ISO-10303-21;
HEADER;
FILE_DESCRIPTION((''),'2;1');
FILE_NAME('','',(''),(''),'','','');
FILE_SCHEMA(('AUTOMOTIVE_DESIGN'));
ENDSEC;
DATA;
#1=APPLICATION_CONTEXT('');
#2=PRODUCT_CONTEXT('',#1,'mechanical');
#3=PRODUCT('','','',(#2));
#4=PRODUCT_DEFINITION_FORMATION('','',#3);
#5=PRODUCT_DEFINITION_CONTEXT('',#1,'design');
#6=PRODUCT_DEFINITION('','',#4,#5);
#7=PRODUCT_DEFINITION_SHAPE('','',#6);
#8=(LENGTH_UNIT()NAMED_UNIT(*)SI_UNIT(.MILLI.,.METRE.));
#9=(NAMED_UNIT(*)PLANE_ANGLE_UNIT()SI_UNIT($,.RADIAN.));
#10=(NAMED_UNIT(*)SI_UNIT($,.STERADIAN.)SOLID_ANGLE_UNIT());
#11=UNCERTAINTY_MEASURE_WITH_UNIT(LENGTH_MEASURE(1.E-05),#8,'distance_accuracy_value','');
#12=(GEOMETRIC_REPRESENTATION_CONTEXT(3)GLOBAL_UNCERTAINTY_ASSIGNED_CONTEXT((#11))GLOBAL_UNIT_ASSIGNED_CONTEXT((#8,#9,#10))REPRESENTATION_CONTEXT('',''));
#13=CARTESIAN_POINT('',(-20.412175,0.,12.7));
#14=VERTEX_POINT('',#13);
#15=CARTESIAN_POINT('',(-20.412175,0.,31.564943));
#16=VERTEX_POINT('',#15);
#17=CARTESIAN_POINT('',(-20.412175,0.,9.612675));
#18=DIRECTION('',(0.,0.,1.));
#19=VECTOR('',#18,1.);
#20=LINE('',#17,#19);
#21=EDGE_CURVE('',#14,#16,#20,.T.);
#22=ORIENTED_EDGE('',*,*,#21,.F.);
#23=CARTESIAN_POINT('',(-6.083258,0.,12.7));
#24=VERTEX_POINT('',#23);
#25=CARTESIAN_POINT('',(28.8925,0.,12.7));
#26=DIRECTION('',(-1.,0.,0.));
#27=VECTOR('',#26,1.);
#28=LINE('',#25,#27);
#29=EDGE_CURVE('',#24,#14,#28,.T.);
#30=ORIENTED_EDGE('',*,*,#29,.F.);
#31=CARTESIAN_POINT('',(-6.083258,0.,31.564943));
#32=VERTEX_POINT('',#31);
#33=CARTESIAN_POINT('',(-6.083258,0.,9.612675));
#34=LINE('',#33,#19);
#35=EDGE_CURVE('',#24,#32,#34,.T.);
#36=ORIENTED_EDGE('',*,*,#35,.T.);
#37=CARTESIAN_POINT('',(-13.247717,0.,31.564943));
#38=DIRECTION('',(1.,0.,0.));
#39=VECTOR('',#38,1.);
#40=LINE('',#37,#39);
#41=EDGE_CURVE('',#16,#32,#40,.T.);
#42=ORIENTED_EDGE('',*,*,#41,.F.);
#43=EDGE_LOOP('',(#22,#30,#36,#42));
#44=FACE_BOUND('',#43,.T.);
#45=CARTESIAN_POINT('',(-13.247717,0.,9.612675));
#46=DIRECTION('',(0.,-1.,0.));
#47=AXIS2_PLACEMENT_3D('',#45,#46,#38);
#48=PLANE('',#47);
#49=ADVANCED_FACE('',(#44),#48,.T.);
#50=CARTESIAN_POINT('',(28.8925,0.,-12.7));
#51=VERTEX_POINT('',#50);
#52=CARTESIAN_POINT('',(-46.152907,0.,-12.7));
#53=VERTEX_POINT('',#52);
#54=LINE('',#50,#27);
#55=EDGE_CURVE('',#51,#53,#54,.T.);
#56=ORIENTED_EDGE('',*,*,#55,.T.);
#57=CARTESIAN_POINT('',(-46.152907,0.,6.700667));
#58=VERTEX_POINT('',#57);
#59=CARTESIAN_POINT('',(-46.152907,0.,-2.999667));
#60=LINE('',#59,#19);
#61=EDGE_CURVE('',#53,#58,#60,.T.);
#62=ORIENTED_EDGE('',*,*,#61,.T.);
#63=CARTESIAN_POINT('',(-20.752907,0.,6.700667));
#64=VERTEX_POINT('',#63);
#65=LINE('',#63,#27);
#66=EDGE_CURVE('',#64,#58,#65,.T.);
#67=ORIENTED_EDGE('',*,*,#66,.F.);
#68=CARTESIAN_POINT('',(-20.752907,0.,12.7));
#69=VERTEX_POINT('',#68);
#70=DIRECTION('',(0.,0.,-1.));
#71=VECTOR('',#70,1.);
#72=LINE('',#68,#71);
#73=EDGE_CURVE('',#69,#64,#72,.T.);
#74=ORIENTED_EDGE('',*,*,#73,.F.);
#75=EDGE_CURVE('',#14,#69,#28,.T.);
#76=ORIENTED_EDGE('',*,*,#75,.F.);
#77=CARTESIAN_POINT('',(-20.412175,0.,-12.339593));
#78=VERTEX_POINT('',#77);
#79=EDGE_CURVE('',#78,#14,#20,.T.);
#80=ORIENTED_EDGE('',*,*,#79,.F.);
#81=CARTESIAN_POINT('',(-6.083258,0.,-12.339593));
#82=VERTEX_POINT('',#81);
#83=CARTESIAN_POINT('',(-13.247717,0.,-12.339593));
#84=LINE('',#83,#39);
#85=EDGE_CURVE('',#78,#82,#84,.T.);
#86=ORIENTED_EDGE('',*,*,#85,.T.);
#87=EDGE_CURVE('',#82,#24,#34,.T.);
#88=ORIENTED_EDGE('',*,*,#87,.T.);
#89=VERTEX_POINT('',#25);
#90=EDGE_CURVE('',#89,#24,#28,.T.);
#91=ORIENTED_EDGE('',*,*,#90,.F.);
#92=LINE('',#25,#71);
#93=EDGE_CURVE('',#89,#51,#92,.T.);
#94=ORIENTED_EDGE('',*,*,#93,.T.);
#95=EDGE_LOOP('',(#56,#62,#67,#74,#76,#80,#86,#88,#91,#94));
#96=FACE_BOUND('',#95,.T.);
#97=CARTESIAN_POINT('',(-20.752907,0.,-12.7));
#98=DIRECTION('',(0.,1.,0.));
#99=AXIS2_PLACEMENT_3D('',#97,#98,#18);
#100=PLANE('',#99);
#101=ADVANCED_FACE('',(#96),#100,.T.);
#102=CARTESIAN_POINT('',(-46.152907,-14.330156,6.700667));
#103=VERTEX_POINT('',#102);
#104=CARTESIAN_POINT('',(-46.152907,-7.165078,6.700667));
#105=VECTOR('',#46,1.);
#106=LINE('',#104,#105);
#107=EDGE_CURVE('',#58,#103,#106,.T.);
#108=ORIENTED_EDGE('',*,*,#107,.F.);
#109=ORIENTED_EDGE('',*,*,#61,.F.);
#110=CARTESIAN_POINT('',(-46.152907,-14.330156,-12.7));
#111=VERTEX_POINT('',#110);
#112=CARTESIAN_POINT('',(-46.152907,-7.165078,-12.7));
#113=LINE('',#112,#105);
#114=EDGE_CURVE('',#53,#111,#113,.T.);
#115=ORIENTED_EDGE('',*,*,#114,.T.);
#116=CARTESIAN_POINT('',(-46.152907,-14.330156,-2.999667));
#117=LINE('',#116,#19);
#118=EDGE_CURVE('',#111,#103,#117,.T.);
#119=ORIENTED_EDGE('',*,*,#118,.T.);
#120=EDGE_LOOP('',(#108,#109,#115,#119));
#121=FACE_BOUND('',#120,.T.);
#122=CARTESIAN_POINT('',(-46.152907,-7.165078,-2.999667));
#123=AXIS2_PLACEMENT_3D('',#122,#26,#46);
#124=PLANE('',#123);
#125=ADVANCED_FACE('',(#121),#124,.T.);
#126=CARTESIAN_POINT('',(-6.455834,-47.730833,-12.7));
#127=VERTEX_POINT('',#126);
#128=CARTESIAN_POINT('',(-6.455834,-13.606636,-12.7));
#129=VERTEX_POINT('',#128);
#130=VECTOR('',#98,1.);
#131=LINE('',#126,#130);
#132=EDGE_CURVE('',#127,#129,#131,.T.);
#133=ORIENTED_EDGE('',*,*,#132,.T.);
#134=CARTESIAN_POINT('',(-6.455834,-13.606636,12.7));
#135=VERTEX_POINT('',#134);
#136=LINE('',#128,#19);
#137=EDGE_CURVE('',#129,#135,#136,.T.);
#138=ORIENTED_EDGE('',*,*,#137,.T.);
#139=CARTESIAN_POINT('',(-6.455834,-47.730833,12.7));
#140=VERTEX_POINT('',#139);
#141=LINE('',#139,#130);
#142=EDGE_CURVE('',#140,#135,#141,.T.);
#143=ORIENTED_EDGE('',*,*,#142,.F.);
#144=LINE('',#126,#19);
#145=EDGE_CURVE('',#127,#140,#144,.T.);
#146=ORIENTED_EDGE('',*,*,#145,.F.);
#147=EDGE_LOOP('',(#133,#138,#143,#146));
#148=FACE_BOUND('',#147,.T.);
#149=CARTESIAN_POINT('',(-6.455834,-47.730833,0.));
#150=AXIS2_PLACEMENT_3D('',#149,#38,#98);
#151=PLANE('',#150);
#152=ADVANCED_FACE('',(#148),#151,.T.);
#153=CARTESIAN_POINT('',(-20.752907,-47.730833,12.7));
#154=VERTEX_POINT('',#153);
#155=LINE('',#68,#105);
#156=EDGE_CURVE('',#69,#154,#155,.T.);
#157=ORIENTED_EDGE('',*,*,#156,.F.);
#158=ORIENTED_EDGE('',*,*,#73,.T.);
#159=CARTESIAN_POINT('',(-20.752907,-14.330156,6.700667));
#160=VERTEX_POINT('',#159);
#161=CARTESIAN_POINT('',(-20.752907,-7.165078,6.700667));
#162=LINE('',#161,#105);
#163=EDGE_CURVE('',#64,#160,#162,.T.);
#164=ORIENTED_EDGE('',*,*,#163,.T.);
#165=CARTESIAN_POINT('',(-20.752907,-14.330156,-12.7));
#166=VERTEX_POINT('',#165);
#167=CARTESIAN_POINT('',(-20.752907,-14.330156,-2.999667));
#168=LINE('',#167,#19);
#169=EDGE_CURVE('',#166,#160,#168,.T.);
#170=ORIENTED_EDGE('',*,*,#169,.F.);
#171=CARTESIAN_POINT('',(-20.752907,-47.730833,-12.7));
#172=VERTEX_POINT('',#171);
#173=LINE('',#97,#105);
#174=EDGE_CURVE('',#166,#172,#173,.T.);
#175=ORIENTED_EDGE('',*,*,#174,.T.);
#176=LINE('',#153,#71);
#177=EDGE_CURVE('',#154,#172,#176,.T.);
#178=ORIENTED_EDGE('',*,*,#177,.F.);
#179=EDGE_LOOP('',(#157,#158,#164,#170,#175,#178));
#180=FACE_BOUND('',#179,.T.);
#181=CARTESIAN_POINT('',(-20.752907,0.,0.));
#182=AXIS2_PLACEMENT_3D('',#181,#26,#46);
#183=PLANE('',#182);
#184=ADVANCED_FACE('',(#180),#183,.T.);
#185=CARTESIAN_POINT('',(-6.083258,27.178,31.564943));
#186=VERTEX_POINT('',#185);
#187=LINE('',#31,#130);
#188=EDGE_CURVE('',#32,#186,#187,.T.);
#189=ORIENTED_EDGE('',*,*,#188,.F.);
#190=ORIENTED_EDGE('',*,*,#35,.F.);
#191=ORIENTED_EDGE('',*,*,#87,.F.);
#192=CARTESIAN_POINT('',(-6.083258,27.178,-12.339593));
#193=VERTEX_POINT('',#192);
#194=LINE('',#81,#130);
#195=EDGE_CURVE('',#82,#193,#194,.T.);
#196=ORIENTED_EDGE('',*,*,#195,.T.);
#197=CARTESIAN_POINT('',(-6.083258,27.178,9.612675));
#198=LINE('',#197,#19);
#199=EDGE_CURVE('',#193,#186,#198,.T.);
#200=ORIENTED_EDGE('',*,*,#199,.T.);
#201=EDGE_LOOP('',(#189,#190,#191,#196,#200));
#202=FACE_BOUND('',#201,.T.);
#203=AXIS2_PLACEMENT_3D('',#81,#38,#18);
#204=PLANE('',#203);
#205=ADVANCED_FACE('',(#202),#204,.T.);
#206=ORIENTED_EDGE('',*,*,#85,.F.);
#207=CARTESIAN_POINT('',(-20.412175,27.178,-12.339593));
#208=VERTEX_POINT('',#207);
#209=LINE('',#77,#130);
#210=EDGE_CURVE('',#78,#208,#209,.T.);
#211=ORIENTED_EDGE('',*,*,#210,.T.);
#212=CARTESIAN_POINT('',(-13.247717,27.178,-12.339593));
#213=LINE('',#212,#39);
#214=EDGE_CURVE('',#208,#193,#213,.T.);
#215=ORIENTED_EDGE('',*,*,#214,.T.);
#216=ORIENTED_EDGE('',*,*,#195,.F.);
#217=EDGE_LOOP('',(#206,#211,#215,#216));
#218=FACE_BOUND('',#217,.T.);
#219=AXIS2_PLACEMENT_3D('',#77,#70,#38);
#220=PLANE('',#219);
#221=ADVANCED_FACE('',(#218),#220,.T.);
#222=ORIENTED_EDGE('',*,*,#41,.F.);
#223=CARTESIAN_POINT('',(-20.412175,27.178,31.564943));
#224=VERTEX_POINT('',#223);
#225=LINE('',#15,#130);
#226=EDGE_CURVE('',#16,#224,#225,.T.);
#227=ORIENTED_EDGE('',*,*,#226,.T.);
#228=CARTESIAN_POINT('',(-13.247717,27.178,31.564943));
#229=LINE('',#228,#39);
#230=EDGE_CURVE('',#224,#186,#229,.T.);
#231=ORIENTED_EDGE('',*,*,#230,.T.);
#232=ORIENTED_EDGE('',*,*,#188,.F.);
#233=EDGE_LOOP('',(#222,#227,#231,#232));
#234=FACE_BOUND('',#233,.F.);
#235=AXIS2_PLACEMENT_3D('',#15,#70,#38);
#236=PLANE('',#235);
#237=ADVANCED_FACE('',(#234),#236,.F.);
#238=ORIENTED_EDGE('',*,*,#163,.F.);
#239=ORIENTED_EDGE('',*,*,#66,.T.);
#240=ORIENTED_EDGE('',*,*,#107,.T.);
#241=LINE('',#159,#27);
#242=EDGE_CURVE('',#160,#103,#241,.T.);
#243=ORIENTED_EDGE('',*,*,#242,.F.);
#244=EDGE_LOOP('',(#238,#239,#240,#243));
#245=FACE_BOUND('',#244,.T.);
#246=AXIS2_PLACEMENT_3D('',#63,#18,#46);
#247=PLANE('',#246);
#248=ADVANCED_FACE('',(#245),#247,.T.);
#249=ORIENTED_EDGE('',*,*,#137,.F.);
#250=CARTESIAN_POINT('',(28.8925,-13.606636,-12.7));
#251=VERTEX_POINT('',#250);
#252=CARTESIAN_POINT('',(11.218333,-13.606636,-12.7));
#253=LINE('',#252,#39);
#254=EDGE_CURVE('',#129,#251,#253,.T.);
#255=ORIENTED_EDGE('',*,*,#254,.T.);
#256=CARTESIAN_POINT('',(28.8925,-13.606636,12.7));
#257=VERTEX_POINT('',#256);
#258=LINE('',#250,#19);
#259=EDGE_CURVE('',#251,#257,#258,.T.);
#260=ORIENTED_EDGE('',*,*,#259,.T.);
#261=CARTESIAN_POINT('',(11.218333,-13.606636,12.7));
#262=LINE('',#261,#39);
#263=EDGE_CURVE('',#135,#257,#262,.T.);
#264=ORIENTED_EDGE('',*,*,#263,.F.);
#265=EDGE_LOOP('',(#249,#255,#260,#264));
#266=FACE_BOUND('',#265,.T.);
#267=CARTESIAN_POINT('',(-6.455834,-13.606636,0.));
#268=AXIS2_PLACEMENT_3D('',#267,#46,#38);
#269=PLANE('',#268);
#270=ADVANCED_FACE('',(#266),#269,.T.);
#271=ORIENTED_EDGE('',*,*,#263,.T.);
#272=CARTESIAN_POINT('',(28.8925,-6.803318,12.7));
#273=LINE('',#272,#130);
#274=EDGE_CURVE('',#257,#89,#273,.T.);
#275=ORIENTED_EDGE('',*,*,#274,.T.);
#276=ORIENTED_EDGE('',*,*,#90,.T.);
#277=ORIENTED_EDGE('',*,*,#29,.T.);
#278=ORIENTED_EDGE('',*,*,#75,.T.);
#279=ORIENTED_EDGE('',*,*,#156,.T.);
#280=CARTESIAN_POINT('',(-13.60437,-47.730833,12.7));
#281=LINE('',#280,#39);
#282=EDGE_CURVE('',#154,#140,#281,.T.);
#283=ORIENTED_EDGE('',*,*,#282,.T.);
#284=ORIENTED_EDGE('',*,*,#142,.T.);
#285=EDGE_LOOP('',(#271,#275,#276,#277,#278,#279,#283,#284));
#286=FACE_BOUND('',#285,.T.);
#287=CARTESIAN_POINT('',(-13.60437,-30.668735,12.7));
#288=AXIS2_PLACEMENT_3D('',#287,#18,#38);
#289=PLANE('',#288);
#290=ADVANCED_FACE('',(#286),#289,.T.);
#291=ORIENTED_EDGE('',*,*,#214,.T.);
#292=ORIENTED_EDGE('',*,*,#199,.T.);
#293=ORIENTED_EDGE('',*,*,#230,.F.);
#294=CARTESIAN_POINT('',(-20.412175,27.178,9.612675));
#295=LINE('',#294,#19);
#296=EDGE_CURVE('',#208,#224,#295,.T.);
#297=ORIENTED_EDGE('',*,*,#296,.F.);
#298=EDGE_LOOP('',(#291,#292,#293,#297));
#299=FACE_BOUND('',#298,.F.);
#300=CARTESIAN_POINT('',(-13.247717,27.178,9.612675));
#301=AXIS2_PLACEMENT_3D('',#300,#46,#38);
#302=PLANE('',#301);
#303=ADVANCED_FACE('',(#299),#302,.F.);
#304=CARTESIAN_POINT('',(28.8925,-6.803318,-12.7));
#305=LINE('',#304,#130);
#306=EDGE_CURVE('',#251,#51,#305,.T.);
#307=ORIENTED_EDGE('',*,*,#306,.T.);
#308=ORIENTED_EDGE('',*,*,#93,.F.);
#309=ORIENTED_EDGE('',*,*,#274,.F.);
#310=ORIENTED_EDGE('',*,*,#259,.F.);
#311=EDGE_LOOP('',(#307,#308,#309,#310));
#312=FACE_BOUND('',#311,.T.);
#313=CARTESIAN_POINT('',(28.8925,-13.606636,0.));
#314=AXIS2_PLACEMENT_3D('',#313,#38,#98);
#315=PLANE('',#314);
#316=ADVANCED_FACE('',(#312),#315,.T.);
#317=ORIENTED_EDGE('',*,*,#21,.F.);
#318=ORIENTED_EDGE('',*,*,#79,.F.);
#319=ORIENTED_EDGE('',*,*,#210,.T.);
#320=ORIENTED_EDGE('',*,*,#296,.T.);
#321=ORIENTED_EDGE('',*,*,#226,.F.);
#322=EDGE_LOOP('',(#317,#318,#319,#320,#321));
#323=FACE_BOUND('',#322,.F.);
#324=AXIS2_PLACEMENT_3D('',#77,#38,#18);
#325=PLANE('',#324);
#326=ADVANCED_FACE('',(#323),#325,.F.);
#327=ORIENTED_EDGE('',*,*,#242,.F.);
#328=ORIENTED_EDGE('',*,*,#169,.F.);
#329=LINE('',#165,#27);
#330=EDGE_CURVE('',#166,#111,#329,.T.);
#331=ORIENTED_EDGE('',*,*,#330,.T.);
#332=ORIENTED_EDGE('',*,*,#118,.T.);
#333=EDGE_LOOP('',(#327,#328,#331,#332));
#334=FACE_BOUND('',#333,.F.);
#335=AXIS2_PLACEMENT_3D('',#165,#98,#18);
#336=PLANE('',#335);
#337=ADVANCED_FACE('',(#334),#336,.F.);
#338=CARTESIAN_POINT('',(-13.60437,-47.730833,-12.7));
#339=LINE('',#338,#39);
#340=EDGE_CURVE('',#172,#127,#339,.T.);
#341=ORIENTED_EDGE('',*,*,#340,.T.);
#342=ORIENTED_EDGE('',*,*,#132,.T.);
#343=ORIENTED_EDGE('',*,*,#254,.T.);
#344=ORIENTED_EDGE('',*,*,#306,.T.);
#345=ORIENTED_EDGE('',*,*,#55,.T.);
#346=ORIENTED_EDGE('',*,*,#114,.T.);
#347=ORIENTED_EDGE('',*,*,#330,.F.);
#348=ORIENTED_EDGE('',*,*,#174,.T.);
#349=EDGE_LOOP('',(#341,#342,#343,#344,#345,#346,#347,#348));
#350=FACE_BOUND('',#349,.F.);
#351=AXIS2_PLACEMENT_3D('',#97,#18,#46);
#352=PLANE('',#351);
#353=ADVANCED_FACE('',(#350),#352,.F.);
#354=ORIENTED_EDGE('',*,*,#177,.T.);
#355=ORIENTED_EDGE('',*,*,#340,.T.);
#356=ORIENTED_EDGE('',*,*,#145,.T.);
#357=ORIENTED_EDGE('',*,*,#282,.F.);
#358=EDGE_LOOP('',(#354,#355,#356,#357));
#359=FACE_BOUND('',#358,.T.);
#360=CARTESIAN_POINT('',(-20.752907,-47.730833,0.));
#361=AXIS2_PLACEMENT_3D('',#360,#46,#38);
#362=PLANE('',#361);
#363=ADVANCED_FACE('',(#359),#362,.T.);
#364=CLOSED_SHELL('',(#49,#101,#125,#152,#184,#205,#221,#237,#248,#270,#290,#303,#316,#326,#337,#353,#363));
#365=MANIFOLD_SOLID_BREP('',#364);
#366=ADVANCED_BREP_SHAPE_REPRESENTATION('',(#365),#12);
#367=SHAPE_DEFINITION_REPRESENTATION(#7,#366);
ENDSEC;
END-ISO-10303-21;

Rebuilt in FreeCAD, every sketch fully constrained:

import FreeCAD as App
import Part
import Sketcher
Q = App.Units.Quantity

doc = App.newDocument("Part")
body = doc.addObject("PartDesign::Body", "Body")

# Sketch on XY plane
sketch1 = doc.addObject("Sketcher::SketchObject", "Sketch")
body.addObject(sketch1)
sketch1.AttachmentSupport = (doc.XY_Plane, [""])
sketch1.MapMode = "FlatFace"
sketch1.addGeometry(Part.LineSegment(App.Vector(-21, -48, 0), App.Vector(-6, -48, 0)), False)
sketch1.addGeometry(Part.LineSegment(App.Vector(-6, -48, 0), App.Vector(-6, -14, 0)), False)
sketch1.addGeometry(Part.LineSegment(App.Vector(-6, -14, 0), App.Vector(29, -14, 0)), False)
sketch1.addGeometry(Part.LineSegment(App.Vector(29, -14, 0), App.Vector(29, 0, 0)), False)
sketch1.addGeometry(Part.LineSegment(App.Vector(29, 0, 0), App.Vector(-21, 0, 0)), False)
sketch1.addGeometry(Part.LineSegment(App.Vector(-21, 0, 0), App.Vector(-21, -48, 0)), False)
sketch1.addConstraint(Sketcher.Constraint("Coincident", 0, 2, 1, 1))
sketch1.addConstraint(Sketcher.Constraint("Coincident", 1, 2, 2, 1))
sketch1.addConstraint(Sketcher.Constraint("Coincident", 2, 2, 3, 1))
sketch1.addConstraint(Sketcher.Constraint("Coincident", 3, 2, 4, 1))
sketch1.addConstraint(Sketcher.Constraint("Coincident", 4, 2, 5, 1))
sketch1.addConstraint(Sketcher.Constraint("Coincident", 5, 2, 0, 1))
sketch1.addConstraint(Sketcher.Constraint("Horizontal", 0))
sketch1.addConstraint(Sketcher.Constraint("Vertical", 1))
sketch1.addConstraint(Sketcher.Constraint("Horizontal", 2))
sketch1.addConstraint(Sketcher.Constraint("Vertical", 3))
sketch1.addConstraint(Sketcher.Constraint("Horizontal", 4))
sketch1.addConstraint(Sketcher.Constraint("Vertical", 5))
sketch1.addConstraint(Sketcher.Constraint("PointOnObject", 3, 2, -1))
sketch1.addConstraint(Sketcher.Constraint("DistanceX", -1, 1, 2, 2, Q("1.1375 in")))
sketch1.addConstraint(Sketcher.Constraint("DistanceX", 0, 1, 0, 2, 14.297073))
sketch1.addConstraint(Sketcher.Constraint("DistanceX", 2, 1, 2, 2, 35.348334))
sketch1.addConstraint(Sketcher.Constraint("DistanceY", 1, 1, 1, 2, 34.124197))
sketch1.addConstraint(Sketcher.Constraint("DistanceY", 3, 1, 3, 2, 13.606636))
pad1 = doc.addObject("PartDesign::Pad", "Pad")
body.addObject(pad1)
pad1.Profile = sketch1
pad1.Length = Q("1 in")
pad1.Midplane = True

# Sketch on XZ plane
sketch2 = doc.addObject("Sketcher::SketchObject", "Sketch001")
body.addObject(sketch2)
sketch2.AttachmentSupport = (doc.XZ_Plane, [""])
sketch2.MapMode = "FlatFace"
sketch2.addGeometry(Part.LineSegment(App.Vector(-20, 32, 0), App.Vector(-20, -12, 0)), False)
sketch2.addGeometry(Part.LineSegment(App.Vector(-20, -12, 0), App.Vector(-6, -12, 0)), False)
sketch2.addGeometry(Part.LineSegment(App.Vector(-6, -12, 0), App.Vector(-6, 32, 0)), False)
sketch2.addGeometry(Part.LineSegment(App.Vector(-6, 32, 0), App.Vector(-20, 32, 0)), False)
sketch2.addConstraint(Sketcher.Constraint("Coincident", 0, 2, 1, 1))
sketch2.addConstraint(Sketcher.Constraint("Coincident", 1, 2, 2, 1))
sketch2.addConstraint(Sketcher.Constraint("Coincident", 2, 2, 3, 1))
sketch2.addConstraint(Sketcher.Constraint("Coincident", 3, 2, 0, 1))
sketch2.addConstraint(Sketcher.Constraint("Vertical", 0))
sketch2.addConstraint(Sketcher.Constraint("Horizontal", 1))
sketch2.addConstraint(Sketcher.Constraint("Vertical", 2))
sketch2.addConstraint(Sketcher.Constraint("Horizontal", 3))
sketch2.addConstraint(Sketcher.Constraint("DistanceX", 1, 1, 1, 2, 14.328917))
sketch2.addConstraint(Sketcher.Constraint("DistanceY", 0, 2, 0, 1, 43.904536))
sketch2.addConstraint(Sketcher.Constraint("DistanceX", 1, 2, -1, 1, 6.083258))
sketch2.addConstraint(Sketcher.Constraint("DistanceY", 0, 2, -1, 1, 12.339593))
pad2 = doc.addObject("PartDesign::Pad", "Pad001")
body.addObject(pad2)
pad2.Profile = sketch2
pad2.Length = Q("1.07 in")
pad2.Reversed = True

# Sketch on YZ plane
sketch3 = doc.addObject("Sketcher::SketchObject", "Sketch002")
body.addObject(sketch3)
sketch3.AttachmentSupport = (doc.YZ_Plane, [""])
sketch3.MapMode = "FlatFace"
sketch3.AttachmentOffset = App.Placement(App.Vector(0, 0, -20.752907), App.Rotation())
sketch3.addGeometry(Part.LineSegment(App.Vector(0, 7, 0), App.Vector(0, -13, 0)), False)
sketch3.addGeometry(Part.LineSegment(App.Vector(0, -13, 0), App.Vector(-14, -13, 0)), False)
sketch3.addGeometry(Part.LineSegment(App.Vector(-14, -13, 0), App.Vector(-14, 7, 0)), False)
sketch3.addGeometry(Part.LineSegment(App.Vector(-14, 7, 0), App.Vector(0, 7, 0)), False)
sketch3.addConstraint(Sketcher.Constraint("Coincident", 0, 2, 1, 1))
sketch3.addConstraint(Sketcher.Constraint("Coincident", 1, 2, 2, 1))
sketch3.addConstraint(Sketcher.Constraint("Coincident", 2, 2, 3, 1))
sketch3.addConstraint(Sketcher.Constraint("Coincident", 3, 2, 0, 1))
sketch3.addConstraint(Sketcher.Constraint("Vertical", 0))
sketch3.addConstraint(Sketcher.Constraint("Horizontal", 1))
sketch3.addConstraint(Sketcher.Constraint("Vertical", 2))
sketch3.addConstraint(Sketcher.Constraint("Horizontal", 3))
sketch3.addConstraint(Sketcher.Constraint("PointOnObject", 0, 2, -2))
sketch3.addConstraint(Sketcher.Constraint("DistanceY", 0, 2, -1, 1, Q("0.5 in")))
sketch3.addConstraint(Sketcher.Constraint("DistanceX", 1, 2, 1, 1, 14.330156))
sketch3.addConstraint(Sketcher.Constraint("DistanceY", 0, 2, 0, 1, 19.400667))
pad3 = doc.addObject("PartDesign::Pad", "Pad002")
body.addObject(pad3)
pad3.Profile = sketch3
pad3.Length = Q("1 in")
pad3.Reversed = True

doc.recompute()
